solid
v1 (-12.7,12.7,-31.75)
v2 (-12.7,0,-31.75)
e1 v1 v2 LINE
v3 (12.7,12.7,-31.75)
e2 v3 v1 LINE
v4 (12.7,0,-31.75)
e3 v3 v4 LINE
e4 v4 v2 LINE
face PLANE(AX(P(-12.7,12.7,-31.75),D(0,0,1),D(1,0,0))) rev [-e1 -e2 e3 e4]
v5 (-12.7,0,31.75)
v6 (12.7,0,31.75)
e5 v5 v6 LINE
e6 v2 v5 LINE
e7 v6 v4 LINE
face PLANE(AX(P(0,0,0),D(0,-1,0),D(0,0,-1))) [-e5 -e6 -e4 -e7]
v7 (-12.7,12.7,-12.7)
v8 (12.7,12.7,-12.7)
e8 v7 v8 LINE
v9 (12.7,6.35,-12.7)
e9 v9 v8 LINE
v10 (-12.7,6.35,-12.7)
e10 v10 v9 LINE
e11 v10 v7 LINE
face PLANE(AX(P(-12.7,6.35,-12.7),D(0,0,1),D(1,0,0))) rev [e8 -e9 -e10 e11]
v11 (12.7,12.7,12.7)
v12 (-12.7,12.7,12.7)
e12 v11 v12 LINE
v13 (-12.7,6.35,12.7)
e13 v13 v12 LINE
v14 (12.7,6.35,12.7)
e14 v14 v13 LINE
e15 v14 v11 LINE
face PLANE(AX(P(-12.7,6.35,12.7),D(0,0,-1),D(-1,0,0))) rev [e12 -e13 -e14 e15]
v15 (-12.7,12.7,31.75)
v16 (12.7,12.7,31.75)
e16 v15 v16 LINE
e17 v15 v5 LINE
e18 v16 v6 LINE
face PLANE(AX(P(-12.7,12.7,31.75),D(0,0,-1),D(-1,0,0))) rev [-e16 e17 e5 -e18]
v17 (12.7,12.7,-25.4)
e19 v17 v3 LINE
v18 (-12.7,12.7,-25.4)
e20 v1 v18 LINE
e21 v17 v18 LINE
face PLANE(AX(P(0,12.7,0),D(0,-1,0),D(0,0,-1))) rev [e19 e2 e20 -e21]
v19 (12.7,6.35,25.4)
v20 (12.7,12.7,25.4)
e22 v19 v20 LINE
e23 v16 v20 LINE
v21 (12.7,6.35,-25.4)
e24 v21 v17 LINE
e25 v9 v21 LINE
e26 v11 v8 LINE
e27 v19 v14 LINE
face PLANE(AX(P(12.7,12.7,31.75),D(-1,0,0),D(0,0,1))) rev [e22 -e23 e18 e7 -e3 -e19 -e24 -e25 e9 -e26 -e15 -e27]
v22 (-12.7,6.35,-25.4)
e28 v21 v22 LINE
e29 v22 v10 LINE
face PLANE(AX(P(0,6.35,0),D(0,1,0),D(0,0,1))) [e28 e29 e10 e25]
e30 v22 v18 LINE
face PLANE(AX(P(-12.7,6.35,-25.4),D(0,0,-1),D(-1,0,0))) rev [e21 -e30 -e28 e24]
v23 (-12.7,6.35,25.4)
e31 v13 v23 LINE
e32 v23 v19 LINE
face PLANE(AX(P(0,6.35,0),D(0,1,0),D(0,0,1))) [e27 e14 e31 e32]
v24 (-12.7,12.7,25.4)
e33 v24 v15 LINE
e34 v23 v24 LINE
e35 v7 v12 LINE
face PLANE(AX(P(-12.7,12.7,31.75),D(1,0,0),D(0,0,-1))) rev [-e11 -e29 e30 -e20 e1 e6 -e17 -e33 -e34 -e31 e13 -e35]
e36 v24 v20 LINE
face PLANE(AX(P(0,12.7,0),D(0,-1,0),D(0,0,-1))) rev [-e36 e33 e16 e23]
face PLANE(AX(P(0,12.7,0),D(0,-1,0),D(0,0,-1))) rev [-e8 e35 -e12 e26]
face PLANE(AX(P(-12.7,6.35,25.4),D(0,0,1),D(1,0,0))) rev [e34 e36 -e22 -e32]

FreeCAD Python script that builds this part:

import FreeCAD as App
import Part
import Sketcher
Q = App.Units.Quantity

doc = App.newDocument("Part")
params = doc.addObject("Spreadsheet::Sheet", "Params")
for row, (alias, value) in enumerate([
    ("sketch1_width", "1 in"),
    ("sketch1_height", "2.5 in"),
    ("pad1_length", "0.5 in"),
    ("sketch2_width", "1 in"),
    ("sketch2_height", "0.5 in"),
    ("pocket1_length", "0.25 in"),
], start=1):
    params.set(f"A{row}", alias)
    params.set(f"B{row}", "=" + value)
    params.setAlias(f"B{row}", alias)

body = doc.addObject("PartDesign::Body", "Body")

sketch1 = doc.addObject("Sketcher::SketchObject", "Sketch")
body.addObject(sketch1)
sketch1.AttachmentSupport = (doc.XZ_Plane, [""])
sketch1.MapMode = "FlatFace"
sketch1.addGeometry([
    Part.LineSegment(App.Vector(-12.7, -31.75, 0), App.Vector(-12.7, 31.75, 0)),
    Part.LineSegment(App.Vector(-12.7, 31.75, 0), App.Vector(12.7, 31.75, 0)),
    Part.LineSegment(App.Vector(12.7, 31.75, 0), App.Vector(12.7, -31.75, 0)),
    Part.LineSegment(App.Vector(12.7, -31.75, 0), App.Vector(-12.7, -31.75, 0)),
], False)
sketch1.addConstraint([
    Sketcher.Constraint("Coincident", 0, 2, 1, 1),
    Sketcher.Constraint("Coincident", 1, 2, 2, 1),
    Sketcher.Constraint("Coincident", 2, 2, 3, 1),
    Sketcher.Constraint("Coincident", 3, 2, 0, 1),
    Sketcher.Constraint("Vertical", 0),
    Sketcher.Constraint("Horizontal", 1),
    Sketcher.Constraint("Vertical", 2),
    Sketcher.Constraint("Horizontal", 3),
    Sketcher.Constraint("Symmetric", 0, 2, 2, 2, -1, 1),
    Sketcher.Constraint("DistanceX", 1, 1, 1, 2, Q("1 in")),
    Sketcher.Constraint("DistanceY", 0, 1, 0, 2, Q("2.5 in")),
])
sketch1.setExpression("Constraints[9]", "Params.sketch1_width")
sketch1.setExpression("Constraints[10]", "Params.sketch1_height")
pad1 = doc.addObject("PartDesign::Pad", "Pad")
body.addObject(pad1)
pad1.Profile = sketch1
pad1.setExpression("Length", "Params.pad1_length")
pad1.Reversed = True

sketch2 = doc.addObject("Sketcher::SketchObject", "Sketch001")
body.addObject(sketch2)
sketch2.AttachmentSupport = (doc.XZ_Plane, [""])
sketch2.MapMode = "FlatFace"
sketch2.AttachmentOffset = App.Placement(App.Vector(0, 0, -0.5 * 25.4), App.Rotation())
sketch2.addGeometry([
    Part.LineSegment(App.Vector(-12.7, -25.4, 0), App.Vector(-12.7, -12.7, 0)),
    Part.LineSegment(App.Vector(-12.7, -12.7, 0), App.Vector(12.7, -12.7, 0)),
    Part.LineSegment(App.Vector(12.7, -12.7, 0), App.Vector(12.7, -25.4, 0)),
    Part.LineSegment(App.Vector(12.7, -25.4, 0), App.Vector(-12.7, -25.4, 0)),
    Part.LineSegment(App.Vector(-12.7, 12.7, 0), App.Vector(-12.7, 25.4, 0)),
    Part.LineSegment(App.Vector(-12.7, 25.4, 0), App.Vector(12.7, 25.4, 0)),
    Part.LineSegment(App.Vector(12.7, 25.4, 0), App.Vector(12.7, 12.7, 0)),
    Part.LineSegment(App.Vector(12.7, 12.7, 0), App.Vector(-12.7, 12.7, 0)),
], False)
sketch2.addConstraint([
    Sketcher.Constraint("Coincident", 0, 2, 1, 1),
    Sketcher.Constraint("Coincident", 1, 2, 2, 1),
    Sketcher.Constraint("Coincident", 2, 2, 3, 1),
    Sketcher.Constraint("Coincident", 3, 2, 0, 1),
    Sketcher.Constraint("Coincident", 4, 2, 5, 1),
    Sketcher.Constraint("Coincident", 5, 2, 6, 1),
    Sketcher.Constraint("Coincident", 6, 2, 7, 1),
    Sketcher.Constraint("Coincident", 7, 2, 4, 1),
    Sketcher.Constraint("Vertical", 0),
    Sketcher.Constraint("Horizontal", 1),
    Sketcher.Constraint("Vertical", 2),
    Sketcher.Constraint("Horizontal", 3),
    Sketcher.Constraint("Vertical", 4),
    Sketcher.Constraint("Horizontal", 5),
    Sketcher.Constraint("Vertical", 6),
    Sketcher.Constraint("Horizontal", 7),
    Sketcher.Constraint("Symmetric", 2, 2, 4, 2, -1, 1),
    Sketcher.Constraint("Symmetric", 0, 2, 6, 2, -1, 1),
    Sketcher.Constraint("Vertical", 3, 2, 4, 2),
    Sketcher.Constraint("DistanceX", 1, 1, 1, 2, Q("1 in")),
    Sketcher.Constraint("DistanceY", 0, 1, 0, 2, Q("0.5 in")),
    Sketcher.Constraint("DistanceY", 2, 2, -1, 1, Q("1 in")),
])
sketch2.setExpression("Constraints[19]", "Params.sketch2_width")
sketch2.setExpression("Constraints[20]", "Params.sketch2_height")
pocket1 = doc.addObject("PartDesign::Pocket", "Pocket")
body.addObject(pocket1)
pocket1.Profile = sketch2
pocket1.setExpression("Length", "Params.pocket1_length")
pocket1.Reversed = True

doc.recompute()
